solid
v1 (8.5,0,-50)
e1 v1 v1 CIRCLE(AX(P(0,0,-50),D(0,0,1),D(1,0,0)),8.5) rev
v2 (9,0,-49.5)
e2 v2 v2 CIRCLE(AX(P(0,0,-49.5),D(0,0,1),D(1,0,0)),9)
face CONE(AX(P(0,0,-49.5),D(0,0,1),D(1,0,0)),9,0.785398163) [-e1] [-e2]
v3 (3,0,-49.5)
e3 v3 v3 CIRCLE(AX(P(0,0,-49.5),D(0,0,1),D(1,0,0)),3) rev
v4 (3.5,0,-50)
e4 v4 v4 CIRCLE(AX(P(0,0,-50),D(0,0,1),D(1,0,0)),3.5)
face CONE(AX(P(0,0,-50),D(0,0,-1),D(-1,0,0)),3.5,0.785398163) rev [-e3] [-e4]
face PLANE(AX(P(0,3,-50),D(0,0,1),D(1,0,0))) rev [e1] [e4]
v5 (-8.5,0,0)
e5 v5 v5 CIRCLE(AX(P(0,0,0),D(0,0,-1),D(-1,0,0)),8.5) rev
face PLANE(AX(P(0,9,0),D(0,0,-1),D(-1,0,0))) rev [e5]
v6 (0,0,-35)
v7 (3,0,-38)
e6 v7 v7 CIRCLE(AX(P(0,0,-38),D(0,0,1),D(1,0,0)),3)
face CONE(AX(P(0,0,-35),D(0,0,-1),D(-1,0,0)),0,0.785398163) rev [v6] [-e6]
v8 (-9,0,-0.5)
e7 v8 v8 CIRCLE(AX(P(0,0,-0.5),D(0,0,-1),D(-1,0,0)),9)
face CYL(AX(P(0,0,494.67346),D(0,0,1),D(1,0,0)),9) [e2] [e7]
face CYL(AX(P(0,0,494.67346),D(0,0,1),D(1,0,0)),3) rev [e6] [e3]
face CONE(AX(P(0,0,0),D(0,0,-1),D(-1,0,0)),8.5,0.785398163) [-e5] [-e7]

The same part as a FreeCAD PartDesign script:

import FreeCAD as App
import Part
import Sketcher

V = App.Vector


def edges_at(feature, points):
    """Names of the edges that pass closest to the given points."""
    edges = feature.Shape.Edges
    near = lambda p: min(range(len(edges)), key=lambda i: edges[i].distToShape(Part.Vertex(*p))[0])
    return sorted({f"Edge{near(p) + 1}" for p in points})


def add_polygon(sketch, points):
    """Adds a closed chain of lines whose ends are joined by coincident constraints."""
    first, n = sketch.GeometryCount, len(points)
    for a, b in zip(points, points[1:] + points[:1]):
        sketch.addGeometry(Part.LineSegment(App.Vector(*a, 0), App.Vector(*b, 0)), False)
    for i in range(n):
        sketch.addConstraint(Sketcher.Constraint("Coincident", first + i, 2, first + (i + 1) % n, 1))

doc = App.newDocument("Part")
body = doc.addObject("PartDesign::Body", "Body")

sketch1 = body.newObject("Sketcher::SketchObject", "Sketch")
sketch1.AttachmentSupport = (doc.getObject("YZ_Plane"), [""])
sketch1.MapMode = "FlatFace"
add_polygon(sketch1, [(0, 0), (0, -35), (3, -38), (3, -50), (9, -50), (9, 0)])
sketch1.addConstraint(Sketcher.Constraint("Vertical", 0))
sketch1.addConstraint(Sketcher.Constraint("Vertical", 2))
sketch1.addConstraint(Sketcher.Constraint("Horizontal", 3))
sketch1.addConstraint(Sketcher.Constraint("Vertical", 4))
sketch1.addConstraint(Sketcher.Constraint("Horizontal", 5))
sketch1.addConstraint(Sketcher.Constraint("Coincident", 5, 2, -1, 1))
sketch1.addConstraint(Sketcher.Constraint("DistanceX", 3, 1, 3, 2, 6.0))
sketch1.addConstraint(Sketcher.Constraint("DistanceX", 5, 2, 5, 1, 9.0))
sketch1.addConstraint(Sketcher.Constraint("DistanceY", 0, 2, 0, 1, 35.0))
sketch1.addConstraint(Sketcher.Constraint("DistanceY", 2, 2, 2, 1, 12.0))
sketch1.addConstraint(Sketcher.Constraint("DistanceY", 4, 1, 4, 2, 50.0))
revolution = body.newObject("PartDesign::Revolution", "Revolution")
revolution.Profile = sketch1
revolution.ReferenceAxis = (sketch1, ["V_Axis"])
revolution.Angle = 360
doc.recompute()

chamfer = body.newObject("PartDesign::Chamfer", "Chamfer")
chamfer.Base = (revolution, edges_at(revolution, [(0, -9, 0), (0, -9, -50), (0, -3, -50)]))
chamfer.Size = 0.5

doc.recompute()
